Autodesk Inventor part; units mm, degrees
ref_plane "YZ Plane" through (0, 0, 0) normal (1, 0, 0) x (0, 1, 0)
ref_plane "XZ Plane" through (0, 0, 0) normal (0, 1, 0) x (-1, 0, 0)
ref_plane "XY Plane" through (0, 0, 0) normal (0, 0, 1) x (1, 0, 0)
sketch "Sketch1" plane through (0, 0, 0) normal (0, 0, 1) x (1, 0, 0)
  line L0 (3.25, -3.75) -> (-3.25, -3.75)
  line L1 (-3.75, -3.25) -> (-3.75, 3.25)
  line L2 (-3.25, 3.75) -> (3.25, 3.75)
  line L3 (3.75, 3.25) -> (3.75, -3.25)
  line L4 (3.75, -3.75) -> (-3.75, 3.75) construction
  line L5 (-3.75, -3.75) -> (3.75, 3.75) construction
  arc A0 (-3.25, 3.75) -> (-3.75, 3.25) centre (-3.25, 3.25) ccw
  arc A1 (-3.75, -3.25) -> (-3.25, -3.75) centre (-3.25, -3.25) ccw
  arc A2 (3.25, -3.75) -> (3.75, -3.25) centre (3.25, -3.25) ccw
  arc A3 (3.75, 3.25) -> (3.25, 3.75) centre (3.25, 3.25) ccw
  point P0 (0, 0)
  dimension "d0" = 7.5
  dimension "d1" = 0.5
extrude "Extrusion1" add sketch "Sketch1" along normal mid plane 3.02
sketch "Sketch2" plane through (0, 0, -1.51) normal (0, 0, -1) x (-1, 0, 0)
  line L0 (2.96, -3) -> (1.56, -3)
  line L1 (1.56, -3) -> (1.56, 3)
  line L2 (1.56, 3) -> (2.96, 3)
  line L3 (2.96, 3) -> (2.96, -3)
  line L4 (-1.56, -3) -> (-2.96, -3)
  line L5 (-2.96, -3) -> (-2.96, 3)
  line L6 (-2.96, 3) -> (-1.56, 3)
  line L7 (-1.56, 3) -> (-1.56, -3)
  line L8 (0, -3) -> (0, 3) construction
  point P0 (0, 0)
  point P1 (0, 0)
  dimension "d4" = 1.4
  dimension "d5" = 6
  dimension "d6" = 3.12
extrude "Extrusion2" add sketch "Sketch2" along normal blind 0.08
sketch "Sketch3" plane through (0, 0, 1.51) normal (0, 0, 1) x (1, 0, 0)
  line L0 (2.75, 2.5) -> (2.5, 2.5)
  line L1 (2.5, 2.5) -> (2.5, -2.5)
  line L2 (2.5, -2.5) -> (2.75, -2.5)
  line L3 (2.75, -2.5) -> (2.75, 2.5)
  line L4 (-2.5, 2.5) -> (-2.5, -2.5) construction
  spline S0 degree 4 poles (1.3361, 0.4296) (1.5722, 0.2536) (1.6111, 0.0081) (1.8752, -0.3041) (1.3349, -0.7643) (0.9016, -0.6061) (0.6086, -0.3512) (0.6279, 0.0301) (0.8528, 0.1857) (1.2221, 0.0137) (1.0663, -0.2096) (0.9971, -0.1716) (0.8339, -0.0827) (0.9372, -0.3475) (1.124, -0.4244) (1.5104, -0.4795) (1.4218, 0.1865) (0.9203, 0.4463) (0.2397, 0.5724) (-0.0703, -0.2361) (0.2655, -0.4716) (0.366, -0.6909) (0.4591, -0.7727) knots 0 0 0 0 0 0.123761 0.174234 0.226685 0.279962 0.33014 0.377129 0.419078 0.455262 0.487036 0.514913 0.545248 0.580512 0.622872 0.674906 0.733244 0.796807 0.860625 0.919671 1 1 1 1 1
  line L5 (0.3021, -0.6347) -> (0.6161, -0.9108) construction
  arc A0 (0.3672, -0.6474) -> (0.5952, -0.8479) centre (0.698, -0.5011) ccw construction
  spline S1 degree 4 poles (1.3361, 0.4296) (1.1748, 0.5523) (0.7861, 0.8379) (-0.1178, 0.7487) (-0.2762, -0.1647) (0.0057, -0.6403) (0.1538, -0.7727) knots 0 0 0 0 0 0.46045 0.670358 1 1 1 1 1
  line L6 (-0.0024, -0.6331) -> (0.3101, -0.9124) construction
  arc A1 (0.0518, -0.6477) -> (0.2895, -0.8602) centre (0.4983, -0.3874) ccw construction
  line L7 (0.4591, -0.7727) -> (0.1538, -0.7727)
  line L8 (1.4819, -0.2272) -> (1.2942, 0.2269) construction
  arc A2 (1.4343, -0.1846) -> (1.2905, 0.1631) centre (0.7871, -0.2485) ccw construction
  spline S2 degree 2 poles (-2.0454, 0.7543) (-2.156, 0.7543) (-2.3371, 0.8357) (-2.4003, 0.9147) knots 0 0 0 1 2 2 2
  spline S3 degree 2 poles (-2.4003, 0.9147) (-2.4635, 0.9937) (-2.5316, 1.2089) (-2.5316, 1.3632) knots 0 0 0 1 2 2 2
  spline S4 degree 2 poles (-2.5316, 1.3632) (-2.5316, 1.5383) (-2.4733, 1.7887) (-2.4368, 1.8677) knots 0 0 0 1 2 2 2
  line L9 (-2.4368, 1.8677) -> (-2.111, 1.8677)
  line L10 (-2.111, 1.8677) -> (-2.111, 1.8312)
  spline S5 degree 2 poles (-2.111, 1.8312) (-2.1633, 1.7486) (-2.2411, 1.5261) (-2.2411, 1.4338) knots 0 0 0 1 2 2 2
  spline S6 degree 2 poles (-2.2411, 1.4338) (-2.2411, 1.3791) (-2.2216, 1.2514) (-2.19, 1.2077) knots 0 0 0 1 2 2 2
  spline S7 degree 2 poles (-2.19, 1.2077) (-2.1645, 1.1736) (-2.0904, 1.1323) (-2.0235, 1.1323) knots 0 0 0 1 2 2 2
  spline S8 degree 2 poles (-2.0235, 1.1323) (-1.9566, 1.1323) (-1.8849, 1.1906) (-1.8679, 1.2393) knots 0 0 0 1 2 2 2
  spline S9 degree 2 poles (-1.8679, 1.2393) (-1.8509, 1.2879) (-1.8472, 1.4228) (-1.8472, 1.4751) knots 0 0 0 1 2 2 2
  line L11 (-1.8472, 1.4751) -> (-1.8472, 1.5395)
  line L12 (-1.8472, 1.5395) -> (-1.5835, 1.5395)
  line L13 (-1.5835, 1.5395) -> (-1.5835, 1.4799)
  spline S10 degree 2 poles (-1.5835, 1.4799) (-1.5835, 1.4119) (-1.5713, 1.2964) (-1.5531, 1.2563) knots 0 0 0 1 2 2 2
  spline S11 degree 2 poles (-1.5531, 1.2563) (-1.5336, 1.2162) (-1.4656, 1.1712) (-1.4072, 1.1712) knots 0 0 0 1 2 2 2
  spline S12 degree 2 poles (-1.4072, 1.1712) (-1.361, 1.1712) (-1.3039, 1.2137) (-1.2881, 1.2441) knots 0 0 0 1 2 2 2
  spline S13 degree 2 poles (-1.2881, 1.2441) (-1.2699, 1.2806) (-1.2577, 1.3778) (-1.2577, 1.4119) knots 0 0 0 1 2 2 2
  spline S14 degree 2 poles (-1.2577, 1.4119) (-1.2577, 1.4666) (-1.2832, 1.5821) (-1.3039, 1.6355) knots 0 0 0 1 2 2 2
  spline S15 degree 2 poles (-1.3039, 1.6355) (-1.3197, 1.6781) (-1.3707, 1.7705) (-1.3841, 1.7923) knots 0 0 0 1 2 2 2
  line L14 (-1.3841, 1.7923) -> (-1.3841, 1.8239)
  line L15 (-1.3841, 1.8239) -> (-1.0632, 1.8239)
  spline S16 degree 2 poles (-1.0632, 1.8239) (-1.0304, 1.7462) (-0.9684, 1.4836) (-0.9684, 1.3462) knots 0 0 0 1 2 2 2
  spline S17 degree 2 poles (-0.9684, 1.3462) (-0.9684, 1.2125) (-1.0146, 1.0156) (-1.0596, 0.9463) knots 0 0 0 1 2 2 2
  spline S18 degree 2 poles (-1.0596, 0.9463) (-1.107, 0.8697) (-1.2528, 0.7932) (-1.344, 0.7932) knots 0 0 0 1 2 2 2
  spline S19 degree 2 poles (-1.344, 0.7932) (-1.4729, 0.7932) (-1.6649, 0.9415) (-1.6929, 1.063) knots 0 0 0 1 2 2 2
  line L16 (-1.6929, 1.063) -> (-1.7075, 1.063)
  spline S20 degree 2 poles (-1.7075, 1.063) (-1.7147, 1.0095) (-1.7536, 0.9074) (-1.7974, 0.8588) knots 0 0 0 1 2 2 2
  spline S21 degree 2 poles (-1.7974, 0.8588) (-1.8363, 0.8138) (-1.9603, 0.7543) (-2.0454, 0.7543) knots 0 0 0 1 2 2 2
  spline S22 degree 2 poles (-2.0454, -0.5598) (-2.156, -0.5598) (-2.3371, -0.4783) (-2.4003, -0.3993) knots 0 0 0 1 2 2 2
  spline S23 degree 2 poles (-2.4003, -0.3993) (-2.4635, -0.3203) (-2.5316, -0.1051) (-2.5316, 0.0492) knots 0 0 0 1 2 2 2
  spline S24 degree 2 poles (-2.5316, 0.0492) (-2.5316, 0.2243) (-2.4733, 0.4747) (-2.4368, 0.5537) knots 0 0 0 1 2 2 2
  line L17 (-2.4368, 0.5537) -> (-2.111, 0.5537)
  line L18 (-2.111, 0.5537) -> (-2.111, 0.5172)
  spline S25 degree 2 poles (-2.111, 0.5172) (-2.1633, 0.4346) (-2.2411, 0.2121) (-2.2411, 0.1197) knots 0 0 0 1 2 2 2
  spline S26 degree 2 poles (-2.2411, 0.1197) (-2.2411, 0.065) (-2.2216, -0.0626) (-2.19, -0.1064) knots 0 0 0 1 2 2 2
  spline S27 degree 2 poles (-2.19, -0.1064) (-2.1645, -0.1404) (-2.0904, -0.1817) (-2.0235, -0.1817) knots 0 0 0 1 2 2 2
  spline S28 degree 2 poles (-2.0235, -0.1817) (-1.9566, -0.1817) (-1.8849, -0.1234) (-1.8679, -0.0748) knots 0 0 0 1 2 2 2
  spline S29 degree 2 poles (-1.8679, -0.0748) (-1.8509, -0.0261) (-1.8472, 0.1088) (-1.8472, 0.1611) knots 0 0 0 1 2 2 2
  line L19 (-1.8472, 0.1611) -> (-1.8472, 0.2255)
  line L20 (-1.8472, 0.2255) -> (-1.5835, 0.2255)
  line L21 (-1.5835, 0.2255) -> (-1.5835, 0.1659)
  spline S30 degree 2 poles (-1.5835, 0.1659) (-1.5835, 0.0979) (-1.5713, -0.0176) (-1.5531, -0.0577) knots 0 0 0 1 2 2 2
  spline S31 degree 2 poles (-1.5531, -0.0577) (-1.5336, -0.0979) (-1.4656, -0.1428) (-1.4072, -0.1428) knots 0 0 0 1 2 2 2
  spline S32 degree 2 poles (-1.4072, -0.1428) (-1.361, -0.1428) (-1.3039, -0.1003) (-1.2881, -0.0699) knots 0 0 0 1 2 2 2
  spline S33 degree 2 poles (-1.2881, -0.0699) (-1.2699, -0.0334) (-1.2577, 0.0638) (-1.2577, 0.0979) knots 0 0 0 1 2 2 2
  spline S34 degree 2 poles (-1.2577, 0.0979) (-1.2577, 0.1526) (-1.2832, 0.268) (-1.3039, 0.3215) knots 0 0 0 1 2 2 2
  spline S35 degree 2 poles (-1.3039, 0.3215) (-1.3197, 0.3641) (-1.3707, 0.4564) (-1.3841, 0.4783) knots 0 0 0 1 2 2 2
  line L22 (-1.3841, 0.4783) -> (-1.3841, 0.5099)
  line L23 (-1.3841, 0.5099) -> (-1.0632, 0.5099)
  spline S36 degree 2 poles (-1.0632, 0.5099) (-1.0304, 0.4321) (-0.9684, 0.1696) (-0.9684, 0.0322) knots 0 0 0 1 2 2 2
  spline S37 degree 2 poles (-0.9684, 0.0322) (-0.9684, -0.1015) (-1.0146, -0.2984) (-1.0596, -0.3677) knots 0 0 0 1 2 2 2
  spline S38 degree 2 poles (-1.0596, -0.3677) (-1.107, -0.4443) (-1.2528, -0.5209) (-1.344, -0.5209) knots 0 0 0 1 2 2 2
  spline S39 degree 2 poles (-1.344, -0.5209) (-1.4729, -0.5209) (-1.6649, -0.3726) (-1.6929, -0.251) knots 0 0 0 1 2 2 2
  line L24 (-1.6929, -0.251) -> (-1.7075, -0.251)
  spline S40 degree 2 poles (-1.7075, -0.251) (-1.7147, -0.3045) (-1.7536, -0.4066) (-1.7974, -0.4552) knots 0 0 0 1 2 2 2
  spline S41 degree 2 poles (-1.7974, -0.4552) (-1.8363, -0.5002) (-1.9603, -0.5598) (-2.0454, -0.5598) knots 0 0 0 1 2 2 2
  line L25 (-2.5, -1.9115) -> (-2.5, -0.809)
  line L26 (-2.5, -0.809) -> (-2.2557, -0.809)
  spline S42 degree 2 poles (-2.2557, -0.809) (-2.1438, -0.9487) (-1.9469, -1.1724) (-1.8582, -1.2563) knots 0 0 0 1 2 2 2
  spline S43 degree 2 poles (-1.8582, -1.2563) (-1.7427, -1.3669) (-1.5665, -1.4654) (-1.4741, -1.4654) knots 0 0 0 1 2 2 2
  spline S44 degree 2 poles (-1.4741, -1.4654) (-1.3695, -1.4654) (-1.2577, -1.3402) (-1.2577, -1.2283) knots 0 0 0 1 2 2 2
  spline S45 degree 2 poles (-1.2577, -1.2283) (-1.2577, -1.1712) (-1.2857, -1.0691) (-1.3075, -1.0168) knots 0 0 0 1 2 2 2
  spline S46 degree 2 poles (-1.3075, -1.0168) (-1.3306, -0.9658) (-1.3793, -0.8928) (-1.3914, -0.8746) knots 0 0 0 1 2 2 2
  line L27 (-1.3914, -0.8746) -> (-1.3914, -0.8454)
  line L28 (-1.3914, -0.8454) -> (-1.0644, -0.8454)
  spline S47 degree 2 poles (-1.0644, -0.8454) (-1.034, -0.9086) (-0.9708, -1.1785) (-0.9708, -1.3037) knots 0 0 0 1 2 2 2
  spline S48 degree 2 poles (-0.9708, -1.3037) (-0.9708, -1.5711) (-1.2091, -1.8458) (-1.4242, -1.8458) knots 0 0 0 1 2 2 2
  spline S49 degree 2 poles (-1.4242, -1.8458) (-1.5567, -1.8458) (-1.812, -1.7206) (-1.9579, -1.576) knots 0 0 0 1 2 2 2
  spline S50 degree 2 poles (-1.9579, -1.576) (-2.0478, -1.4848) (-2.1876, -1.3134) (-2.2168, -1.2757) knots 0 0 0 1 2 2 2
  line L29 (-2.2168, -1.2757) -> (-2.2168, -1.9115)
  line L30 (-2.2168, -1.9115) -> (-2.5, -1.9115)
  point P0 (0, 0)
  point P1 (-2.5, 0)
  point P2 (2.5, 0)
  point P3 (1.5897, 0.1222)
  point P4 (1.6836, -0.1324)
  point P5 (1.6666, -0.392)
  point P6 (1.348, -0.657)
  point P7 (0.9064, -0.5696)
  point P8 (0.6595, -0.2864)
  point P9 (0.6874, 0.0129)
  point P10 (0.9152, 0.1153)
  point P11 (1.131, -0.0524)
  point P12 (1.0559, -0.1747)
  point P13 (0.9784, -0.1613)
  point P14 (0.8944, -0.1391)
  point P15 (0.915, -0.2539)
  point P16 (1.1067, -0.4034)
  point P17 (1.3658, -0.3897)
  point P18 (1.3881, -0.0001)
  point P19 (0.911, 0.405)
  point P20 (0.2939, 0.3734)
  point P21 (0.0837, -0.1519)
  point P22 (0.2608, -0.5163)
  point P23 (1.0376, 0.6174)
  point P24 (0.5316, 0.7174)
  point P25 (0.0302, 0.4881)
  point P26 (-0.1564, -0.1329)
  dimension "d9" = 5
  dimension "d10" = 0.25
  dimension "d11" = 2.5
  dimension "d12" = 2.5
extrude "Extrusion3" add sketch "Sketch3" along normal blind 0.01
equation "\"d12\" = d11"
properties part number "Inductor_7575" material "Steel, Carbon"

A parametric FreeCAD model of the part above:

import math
import FreeCAD as App
import Part
import Sketcher


def add_polygon(sketch, points):
    """Adds a closed chain of lines whose ends are joined by coincident constraints."""
    first, n = sketch.GeometryCount, len(points)
    for a, b in zip(points, points[1:] + points[:1]):
        sketch.addGeometry(Part.LineSegment(App.Vector(*a, 0), App.Vector(*b, 0)), False)
    for i in range(n):
        sketch.addConstraint(Sketcher.Constraint("Coincident", first + i, 2, first + (i + 1) % n, 1))

doc = App.newDocument("Part")
body = doc.addObject("PartDesign::Body", "Body")

sketch1 = doc.addObject("Sketcher::SketchObject", "Sketch")
body.addObject(sketch1)
sketch1.AttachmentSupport = (doc.XY_Plane, [""])
sketch1.MapMode = "FlatFace"
sketch1.addGeometry(Part.LineSegment(App.Vector(-3.2, -3.8, 0), App.Vector(3.2, -3.8, 0)), False)
sketch1.addGeometry(Part.ArcOfCircle(Part.Circle(App.Vector(3.2, -3.2, 0), App.Vector(0, 0, 1), 0.5), math.radians(-90), math.radians(0)), False)
sketch1.addGeometry(Part.LineSegment(App.Vector(3.8, -3.2, 0), App.Vector(3.8, 3.2, 0)), False)
sketch1.addGeometry(Part.ArcOfCircle(Part.Circle(App.Vector(3.2, 3.2, 0), App.Vector(0, 0, 1), 0.5), math.radians(0), math.radians(90)), False)
sketch1.addGeometry(Part.LineSegment(App.Vector(3.2, 3.8, 0), App.Vector(-3.2, 3.8, 0)), False)
sketch1.addGeometry(Part.ArcOfCircle(Part.Circle(App.Vector(-3.2, 3.2, 0), App.Vector(0, 0, 1), 0.5), math.radians(90), math.radians(180)), False)
sketch1.addGeometry(Part.LineSegment(App.Vector(-3.8, 3.2, 0), App.Vector(-3.8, -3.2, 0)), False)
sketch1.addGeometry(Part.ArcOfCircle(Part.Circle(App.Vector(-3.2, -3.2, 0), App.Vector(0, 0, 1), 0.5), math.radians(180), math.radians(270)), False)
sketch1.addConstraint(Sketcher.Constraint("Tangent", 0, 2, 1, 1))
sketch1.addConstraint(Sketcher.Constraint("Tangent", 1, 2, 2, 1))
sketch1.addConstraint(Sketcher.Constraint("Tangent", 2, 2, 3, 1))
sketch1.addConstraint(Sketcher.Constraint("Tangent", 3, 2, 4, 1))
sketch1.addConstraint(Sketcher.Constraint("Tangent", 4, 2, 5, 1))
sketch1.addConstraint(Sketcher.Constraint("Tangent", 5, 2, 6, 1))
sketch1.addConstraint(Sketcher.Constraint("Tangent", 6, 2, 7, 1))
sketch1.addConstraint(Sketcher.Constraint("Tangent", 7, 2, 0, 1))
sketch1.addConstraint(Sketcher.Constraint("Horizontal", 0))
sketch1.addConstraint(Sketcher.Constraint("Vertical", 2))
sketch1.addConstraint(Sketcher.Constraint("Horizontal", 4))
sketch1.addConstraint(Sketcher.Constraint("Vertical", 6))
sketch1.addConstraint(Sketcher.Constraint("Equal", 1, 3))
sketch1.addConstraint(Sketcher.Constraint("Equal", 3, 5))
sketch1.addConstraint(Sketcher.Constraint("Equal", 5, 7))
sketch1.addConstraint(Sketcher.Constraint("Symmetric", 1, 3, 5, 3, -1, 1))
sketch1.addConstraint(Sketcher.Constraint("Equal", 4, 2))
sketch1.addConstraint(Sketcher.Constraint("Radius", 1, 0.5))
sketch1.addConstraint(Sketcher.Constraint("DistanceX", 0, 1, 0, 2, 6.5))
pad1 = doc.addObject("PartDesign::Pad", "Pad")
body.addObject(pad1)
pad1.Profile = sketch1
pad1.Length = 3.02
pad1.Midplane = True

sketch2 = doc.addObject("Sketcher::SketchObject", "Sketch001")
body.addObject(sketch2)
sketch2.AttachmentSupport = (doc.XY_Plane, [""])
sketch2.MapMode = "FlatFace"
sketch2.AttachmentOffset = App.Placement(App.Vector(0, 0, -1.51), App.Rotation())
add_polygon(sketch2, [(-1.6, -3), (-3, -3), (-3, 3), (-1.6, 3)])
add_polygon(sketch2, [(3, -3), (1.6, -3), (1.6, 3), (3, 3)])
sketch2.addConstraint(Sketcher.Constraint("Horizontal", 0))
sketch2.addConstraint(Sketcher.Constraint("Vertical", 1))
sketch2.addConstraint(Sketcher.Constraint("Horizontal", 2))
sketch2.addConstraint(Sketcher.Constraint("Vertical", 3))
sketch2.addConstraint(Sketcher.Constraint("Horizontal", 4))
sketch2.addConstraint(Sketcher.Constraint("Vertical", 5))
sketch2.addConstraint(Sketcher.Constraint("Horizontal", 6))
sketch2.addConstraint(Sketcher.Constraint("Vertical", 7))
sketch2.addConstraint(Sketcher.Constraint("Symmetric", 2, 2, 4, 2, -1, 1))
sketch2.addConstraint(Sketcher.Constraint("Symmetric", 0, 2, 6, 2, -1, 1))
sketch2.addConstraint(Sketcher.Constraint("Horizontal", 3, 2, 4, 2))
sketch2.addConstraint(Sketcher.Constraint("DistanceY", 1, 1, 1, 2, 6.0))
sketch2.addConstraint(Sketcher.Constraint("DistanceX", 0, 2, 0, 1, 1.4))
sketch2.addConstraint(Sketcher.Constraint("DistanceX", 3, 2, 4, 2, 3.12))
pad2 = doc.addObject("PartDesign::Pad", "Pad001")
body.addObject(pad2)
pad2.Profile = sketch2
pad2.Length = 0.08
pad2.Reversed = True

sketch3 = doc.addObject("Sketcher::SketchObject", "Sketch002")
body.addObject(sketch3)
sketch3.AttachmentSupport = (doc.XY_Plane, [""])
sketch3.MapMode = "FlatFace"
sketch3.AttachmentOffset = App.Placement(App.Vector(0, 0, 1.51), App.Rotation())
add_polygon(sketch3, [(2.75, -2.5), (2.75, 2.5), (2.5, 2.5), (2.5, -2.5)])
sketch3.addGeometry(Part.BSplineCurve([App.Vector(1.3361, 0.4296, 0), App.Vector(1.5722, 0.2536, 0), App.Vector(1.6111, 0.0081, 0), App.Vector(1.8752, -0.3041, 0), App.Vector(1.3349, -0.7643, 0), App.Vector(0.9016, -0.6061, 0), App.Vector(0.6086, -0.3512, 0), App.Vector(0.6279, 0.0301, 0), App.Vector(0.8528, 0.1857, 0), App.Vector(1.2221, 0.0137, 0), App.Vector(1.0663, -0.2096, 0), App.Vector(0.9971, -0.1716, 0), App.Vector(0.8339, -0.0827, 0), App.Vector(0.9372, -0.3475, 0), App.Vector(1.124, -0.4244, 0), App.Vector(1.5104, -0.4795, 0), App.Vector(1.4218, 0.1865, 0), App.Vector(0.9203, 0.4463, 0), App.Vector(0.2397, 0.5724, 0), App.Vector(-0.0703, -0.2361, 0), App.Vector(0.2655, -0.4716, 0), App.Vector(0.366, -0.6909, 0), App.Vector(0.4591, -0.7727, 0)], [5, 1, 1, 1, 1, 1, 1, 1, 1, 1, 1, 1, 1, 1, 1, 1, 1, 1, 1, 5], [0, 0.123761, 0.174234, 0.226685, 0.279962, 0.33014, 0.377129, 0.419078, 0.455262, 0.487036, 0.514913, 0.545248, 0.580512, 0.622872, 0.674906, 0.733244, 0.796807, 0.860625, 0.919671, 1], False, 4, [1, 1, 1, 1, 1, 1, 1, 1, 1, 1, 1, 1, 1, 1, 1, 1, 1, 1, 1, 1, 1, 1, 1], False), False)
sketch3.addGeometry(Part.BSplineCurve([App.Vector(1.3361, 0.4296, 0), App.Vector(1.1748, 0.5523, 0), App.Vector(0.7861, 0.8379, 0), App.Vector(-0.1178, 0.7487, 0), App.Vector(-0.2762, -0.1647, 0), App.Vector(0.0057, -0.6403, 0), App.Vector(0.1538, -0.7727, 0)], [5, 1, 1, 5], [0, 0.46045, 0.670358, 1], False, 4, [1, 1, 1, 1, 1, 1, 1], False), False)
sketch3.addGeometry(Part.LineSegment(App.Vector(0.1538, -0.7727, 0), App.Vector(0.4591, -0.7727, 0)), False)
sketch3.addGeometry(Part.BSplineCurve([App.Vector(-2.0454, 0.7543, 0), App.Vector(-2.156, 0.7543, 0), App.Vector(-2.3371, 0.8357, 0), App.Vector(-2.4003, 0.9147, 0)], [3, 1, 3], [0, 1, 2], False, 2, [1, 1, 1, 1], False), False)
sketch3.addGeometry(Part.BSplineCurve([App.Vector(-1.7974, 0.8588, 0), App.Vector(-1.8363, 0.8138, 0), App.Vector(-1.9603, 0.7543, 0), App.Vector(-2.0454, 0.7543, 0)], [3, 1, 3], [0, 1, 2], False, 2, [1, 1, 1, 1], False), False)
sketch3.addGeometry(Part.BSplineCurve([App.Vector(-1.7075, 1.063, 0), App.Vector(-1.7147, 1.0095, 0), App.Vector(-1.7536, 0.9074, 0), App.Vector(-1.7974, 0.8588, 0)], [3, 1, 3], [0, 1, 2], False, 2, [1, 1, 1, 1], False), False)
sketch3.addGeometry(Part.LineSegment(App.Vector(-1.7075, 1.063, 0), App.Vector(-1.6929, 1.063, 0)), False)
sketch3.addGeometry(Part.BSplineCurve([App.Vector(-1.344, 0.7932, 0), App.Vector(-1.4729, 0.7932, 0), App.Vector(-1.6649, 0.9415, 0), App.Vector(-1.6929, 1.063, 0)], [3, 1, 3], [0, 1, 2], False, 2, [1, 1, 1, 1], False), False)
sketch3.addGeometry(Part.BSplineCurve([App.Vector(-1.0596, 0.9463, 0), App.Vector(-1.107, 0.8697, 0), App.Vector(-1.2528, 0.7932, 0), App.Vector(-1.344, 0.7932, 0)], [3, 1, 3], [0, 1, 2], False, 2, [1, 1, 1, 1], False), False)
sketch3.addGeometry(Part.BSplineCurve([App.Vector(-0.9684, 1.3462, 0), App.Vector(-0.9684, 1.2125, 0), App.Vector(-1.0146, 1.0156, 0), App.Vector(-1.0596, 0.9463, 0)], [3, 1, 3], [0, 1, 2], False, 2, [1, 1, 1, 1], False), False)
sketch3.addGeometry(Part.BSplineCurve([App.Vector(-1.0632, 1.8239, 0), App.Vector(-1.0304, 1.7462, 0), App.Vector(-0.9684, 1.4836, 0), App.Vector(-0.9684, 1.3462, 0)], [3, 1, 3], [0, 1, 2], False, 2, [1, 1, 1, 1], False), False)
sketch3.addGeometry(Part.LineSegment(App.Vector(-1.0632, 1.8239, 0), App.Vector(-1.3841, 1.8239, 0)), False)
sketch3.addGeometry(Part.LineSegment(App.Vector(-1.3841, 1.8239, 0), App.Vector(-1.3841, 1.7923, 0)), False)
sketch3.addGeometry(Part.BSplineCurve([App.Vector(-1.3039, 1.6355, 0), App.Vector(-1.3197, 1.6781, 0), App.Vector(-1.3707, 1.7705, 0), App.Vector(-1.3841, 1.7923, 0)], [3, 1, 3], [0, 1, 2], False, 2, [1, 1, 1, 1], False), False)
sketch3.addGeometry(Part.BSplineCurve([App.Vector(-1.2577, 1.4119, 0), App.Vector(-1.2577, 1.4666, 0), App.Vector(-1.2832, 1.5821, 0), App.Vector(-1.3039, 1.6355, 0)], [3, 1, 3], [0, 1, 2], False, 2, [1, 1, 1, 1], False), False)
sketch3.addGeometry(Part.BSplineCurve([App.Vector(-1.2881, 1.2441, 0), App.Vector(-1.2699, 1.2806, 0), App.Vector(-1.2577, 1.3778, 0), App.Vector(-1.2577, 1.4119, 0)], [3, 1, 3], [0, 1, 2], False, 2, [1, 1, 1, 1], False), False)
sketch3.addGeometry(Part.BSplineCurve([App.Vector(-1.4072, 1.1712, 0), App.Vector(-1.361, 1.1712, 0), App.Vector(-1.3039, 1.2137, 0), App.Vector(-1.2881, 1.2441, 0)], [3, 1, 3], [0, 1, 2], False, 2, [1, 1, 1, 1], False), False)
sketch3.addGeometry(Part.BSplineCurve([App.Vector(-1.5531, 1.2563, 0), App.Vector(-1.5336, 1.2162, 0), App.Vector(-1.4656, 1.1712, 0), App.Vector(-1.4072, 1.1712, 0)], [3, 1, 3], [0, 1, 2], False, 2, [1, 1, 1, 1], False), False)
sketch3.addGeometry(Part.BSplineCurve([App.Vector(-1.5835, 1.4799, 0), App.Vector(-1.5835, 1.4119, 0), App.Vector(-1.5713, 1.2964, 0), App.Vector(-1.5531, 1.2563, 0)], [3, 1, 3], [0, 1, 2], False, 2, [1, 1, 1, 1], False), False)
sketch3.addGeometry(Part.LineSegment(App.Vector(-1.5835, 1.4799, 0), App.Vector(-1.5835, 1.5395, 0)), False)
sketch3.addGeometry(Part.LineSegment(App.Vector(-1.5835, 1.5395, 0), App.Vector(-1.8472, 1.5395, 0)), False)
sketch3.addGeometry(Part.LineSegment(App.Vector(-1.8472, 1.5395, 0), App.Vector(-1.8472, 1.4751, 0)), False)
sketch3.addGeometry(Part.BSplineCurve([App.Vector(-1.8679, 1.2393, 0), App.Vector(-1.8509, 1.2879, 0), App.Vector(-1.8472, 1.4228, 0), App.Vector(-1.8472, 1.4751, 0)], [3, 1, 3], [0, 1, 2], False, 2, [1, 1, 1, 1], False), False)
sketch3.addGeometry(Part.BSplineCurve([App.Vector(-2.0235, 1.1323, 0), App.Vector(-1.9566, 1.1323, 0), App.Vector(-1.8849, 1.1906, 0), App.Vector(-1.8679, 1.2393, 0)], [3, 1, 3], [0, 1, 2], False, 2, [1, 1, 1, 1], False), False)
sketch3.addGeometry(Part.BSplineCurve([App.Vector(-2.19, 1.2077, 0), App.Vector(-2.1645, 1.1736, 0), App.Vector(-2.0904, 1.1323, 0), App.Vector(-2.0235, 1.1323, 0)], [3, 1, 3], [0, 1, 2], False, 2, [1, 1, 1, 1], False), False)
sketch3.addGeometry(Part.BSplineCurve([App.Vector(-2.2411, 1.4338, 0), App.Vector(-2.2411, 1.3791, 0), App.Vector(-2.2216, 1.2514, 0), App.Vector(-2.19, 1.2077, 0)], [3, 1, 3], [0, 1, 2], False, 2, [1, 1, 1, 1], False), False)
sketch3.addGeometry(Part.BSplineCurve([App.Vector(-2.111, 1.8312, 0), App.Vector(-2.1633, 1.7486, 0), App.Vector(-2.2411, 1.5261, 0), App.Vector(-2.2411, 1.4338, 0)], [3, 1, 3], [0, 1, 2], False, 2, [1, 1, 1, 1], False), False)
sketch3.addGeometry(Part.LineSegment(App.Vector(-2.111, 1.8312, 0), App.Vector(-2.111, 1.8677, 0)), False)
sketch3.addGeometry(Part.LineSegment(App.Vector(-2.111, 1.8677, 0), App.Vector(-2.4368, 1.8677, 0)), False)
sketch3.addGeometry(Part.BSplineCurve([App.Vector(-2.5316, 1.3632, 0), App.Vector(-2.5316, 1.5383, 0), App.Vector(-2.4733, 1.7887, 0), App.Vector(-2.4368, 1.8677, 0)], [3, 1, 3], [0, 1, 2], False, 2, [1, 1, 1, 1], False), False)
sketch3.addGeometry(Part.BSplineCurve([App.Vector(-2.4003, 0.9147, 0), App.Vector(-2.4635, 0.9937, 0), App.Vector(-2.5316, 1.2089, 0), App.Vector(-2.5316, 1.3632, 0)], [3, 1, 3], [0, 1, 2], False, 2, [1, 1, 1, 1], False), False)
sketch3.addGeometry(Part.BSplineCurve([App.Vector(-2.0454, -0.5598, 0), App.Vector(-2.156, -0.5598, 0), App.Vector(-2.3371, -0.4783, 0), App.Vector(-2.4003, -0.3993, 0)], [3, 1, 3], [0, 1, 2], False, 2, [1, 1, 1, 1], False), False)
sketch3.addGeometry(Part.BSplineCurve([App.Vector(-1.7974, -0.4552, 0), App.Vector(-1.8363, -0.5002, 0), App.Vector(-1.9603, -0.5598, 0), App.Vector(-2.0454, -0.5598, 0)], [3, 1, 3], [0, 1, 2], False, 2, [1, 1, 1, 1], False), False)
sketch3.addGeometry(Part.BSplineCurve([App.Vector(-1.7075, -0.251, 0), App.Vector(-1.7147, -0.3045, 0), App.Vector(-1.7536, -0.4066, 0), App.Vector(-1.7974, -0.4552, 0)], [3, 1, 3], [0, 1, 2], False, 2, [1, 1, 1, 1], False), False)
sketch3.addGeometry(Part.LineSegment(App.Vector(-1.7075, -0.251, 0), App.Vector(-1.6929, -0.251, 0)), False)
sketch3.addGeometry(Part.BSplineCurve([App.Vector(-1.344, -0.5209, 0), App.Vector(-1.4729, -0.5209, 0), App.Vector(-1.6649, -0.3726, 0), App.Vector(-1.6929, -0.251, 0)], [3, 1, 3], [0, 1, 2], False, 2, [1, 1, 1, 1], False), False)
sketch3.addGeometry(Part.BSplineCurve([App.Vector(-1.0596, -0.3677, 0), App.Vector(-1.107, -0.4443, 0), App.Vector(-1.2528, -0.5209, 0), App.Vector(-1.344, -0.5209, 0)], [3, 1, 3], [0, 1, 2], False, 2, [1, 1, 1, 1], False), False)
sketch3.addGeometry(Part.BSplineCurve([App.Vector(-0.9684, 0.0322, 0), App.Vector(-0.9684, -0.1015, 0), App.Vector(-1.0146, -0.2984, 0), App.Vector(-1.0596, -0.3677, 0)], [3, 1, 3], [0, 1, 2], False, 2, [1, 1, 1, 1], False), False)
sketch3.addGeometry(Part.BSplineCurve([App.Vector(-1.0632, 0.5099, 0), App.Vector(-1.0304, 0.4321, 0), App.Vector(-0.9684, 0.1696, 0), App.Vector(-0.9684, 0.0322, 0)], [3, 1, 3], [0, 1, 2], False, 2, [1, 1, 1, 1], False), False)
sketch3.addGeometry(Part.LineSegment(App.Vector(-1.0632, 0.5099, 0), App.Vector(-1.3841, 0.5099, 0)), False)
sketch3.addGeometry(Part.LineSegment(App.Vector(-1.3841, 0.5099, 0), App.Vector(-1.3841, 0.4783, 0)), False)
sketch3.addGeometry(Part.BSplineCurve([App.Vector(-1.3039, 0.3215, 0), App.Vector(-1.3197, 0.3641, 0), App.Vector(-1.3707, 0.4564, 0), App.Vector(-1.3841, 0.4783, 0)], [3, 1, 3], [0, 1, 2], False, 2, [1, 1, 1, 1], False), False)
sketch3.addGeometry(Part.BSplineCurve([App.Vector(-1.2577, 0.0979, 0), App.Vector(-1.2577, 0.1526, 0), App.Vector(-1.2832, 0.268, 0), App.Vector(-1.3039, 0.3215, 0)], [3, 1, 3], [0, 1, 2], False, 2, [1, 1, 1, 1], False), False)
sketch3.addGeometry(Part.BSplineCurve([App.Vector(-1.2881, -0.0699, 0), App.Vector(-1.2699, -0.0334, 0), App.Vector(-1.2577, 0.0638, 0), App.Vector(-1.2577, 0.0979, 0)], [3, 1, 3], [0, 1, 2], False, 2, [1, 1, 1, 1], False), False)
sketch3.addGeometry(Part.BSplineCurve([App.Vector(-1.4072, -0.1428, 0), App.Vector(-1.361, -0.1428, 0), App.Vector(-1.3039, -0.1003, 0), App.Vector(-1.2881, -0.0699, 0)], [3, 1, 3], [0, 1, 2], False, 2, [1, 1, 1, 1], False), False)
sketch3.addGeometry(Part.BSplineCurve([App.Vector(-1.5531, -0.0577, 0), App.Vector(-1.5336, -0.0979, 0), App.Vector(-1.4656, -0.1428, 0), App.Vector(-1.4072, -0.1428, 0)], [3, 1, 3], [0, 1, 2], False, 2, [1, 1, 1, 1], False), False)
sketch3.addGeometry(Part.BSplineCurve([App.Vector(-1.5835, 0.1659, 0), App.Vector(-1.5835, 0.0979, 0), App.Vector(-1.5713, -0.0176, 0), App.Vector(-1.5531, -0.0577, 0)], [3, 1, 3], [0, 1, 2], False, 2, [1, 1, 1, 1], False), False)
sketch3.addGeometry(Part.LineSegment(App.Vector(-1.5835, 0.1659, 0), App.Vector(-1.5835, 0.2255, 0)), False)
sketch3.addGeometry(Part.LineSegment(App.Vector(-1.5835, 0.2255, 0), App.Vector(-1.8472, 0.2255, 0)), False)
sketch3.addGeometry(Part.LineSegment(App.Vector(-1.8472, 0.2255, 0), App.Vector(-1.8472, 0.1611, 0)), False)
sketch3.addGeometry(Part.BSplineCurve([App.Vector(-1.8679, -0.0748, 0), App.Vector(-1.8509, -0.0261, 0), App.Vector(-1.8472, 0.1088, 0), App.Vector(-1.8472, 0.1611, 0)], [3, 1, 3], [0, 1, 2], False, 2, [1, 1, 1, 1], False), False)
sketch3.addGeometry(Part.BSplineCurve([App.Vector(-2.0235, -0.1817, 0), App.Vector(-1.9566, -0.1817, 0), App.Vector(-1.8849, -0.1234, 0), App.Vector(-1.8679, -0.0748, 0)], [3, 1, 3], [0, 1, 2], False, 2, [1, 1, 1, 1], False), False)
sketch3.addGeometry(Part.BSplineCurve([App.Vector(-2.19, -0.1064, 0), App.Vector(-2.1645, -0.1404, 0), App.Vector(-2.0904, -0.1817, 0), App.Vector(-2.0235, -0.1817, 0)], [3, 1, 3], [0, 1, 2], False, 2, [1, 1, 1, 1], False), False)
sketch3.addGeometry(Part.BSplineCurve([App.Vector(-2.2411, 0.1197, 0), App.Vector(-2.2411, 0.065, 0), App.Vector(-2.2216, -0.0626, 0), App.Vector(-2.19, -0.1064, 0)], [3, 1, 3], [0, 1, 2], False, 2, [1, 1, 1, 1], False), False)
sketch3.addGeometry(Part.BSplineCurve([App.Vector(-2.111, 0.5172, 0), App.Vector(-2.1633, 0.4346, 0), App.Vector(-2.2411, 0.2121, 0), App.Vector(-2.2411, 0.1197, 0)], [3, 1, 3], [0, 1, 2], False, 2, [1, 1, 1, 1], False), False)
sketch3.addGeometry(Part.LineSegment(App.Vector(-2.111, 0.5172, 0), App.Vector(-2.111, 0.5537, 0)), False)
sketch3.addGeometry(Part.LineSegment(App.Vector(-2.111, 0.5537, 0), App.Vector(-2.4368, 0.5537, 0)), False)
sketch3.addGeometry(Part.BSplineCurve([App.Vector(-2.5316, 0.0492, 0), App.Vector(-2.5316, 0.2243, 0), App.Vector(-2.4733, 0.4747, 0), App.Vector(-2.4368, 0.5537, 0)], [3, 1, 3], [0, 1, 2], False, 2, [1, 1, 1, 1], False), False)
sketch3.addGeometry(Part.BSplineCurve([App.Vector(-2.4003, -0.3993, 0), App.Vector(-2.4635, -0.3203, 0), App.Vector(-2.5316, -0.1051, 0), App.Vector(-2.5316, 0.0492, 0)], [3, 1, 3], [0, 1, 2], False, 2, [1, 1, 1, 1], False), False)
sketch3.addGeometry(Part.LineSegment(App.Vector(-2.5, -0.809, 0), App.Vector(-2.5, -1.9115, 0)), False)
sketch3.addGeometry(Part.LineSegment(App.Vector(-2.5, -1.9115, 0), App.Vector(-2.2168, -1.9115, 0)), False)
sketch3.addGeometry(Part.LineSegment(App.Vector(-2.2168, -1.9115, 0), App.Vector(-2.2168, -1.2757, 0)), False)
sketch3.addGeometry(Part.BSplineCurve([App.Vector(-1.9579, -1.576, 0), App.Vector(-2.0478, -1.4848, 0), App.Vector(-2.1876, -1.3134, 0), App.Vector(-2.2168, -1.2757, 0)], [3, 1, 3], [0, 1, 2], False, 2, [1, 1, 1, 1], False), False)
sketch3.addGeometry(Part.BSplineCurve([App.Vector(-1.4242, -1.8458, 0), App.Vector(-1.5567, -1.8458, 0), App.Vector(-1.812, -1.7206, 0), App.Vector(-1.9579, -1.576, 0)], [3, 1, 3], [0, 1, 2], False, 2, [1, 1, 1, 1], False), False)
sketch3.addGeometry(Part.BSplineCurve([App.Vector(-0.9708, -1.3037, 0), App.Vector(-0.9708, -1.5711, 0), App.Vector(-1.2091, -1.8458, 0), App.Vector(-1.4242, -1.8458, 0)], [3, 1, 3], [0, 1, 2], False, 2, [1, 1, 1, 1], False), False)
sketch3.addGeometry(Part.BSplineCurve([App.Vector(-1.0644, -0.8454, 0), App.Vector(-1.034, -0.9086, 0), App.Vector(-0.9708, -1.1785, 0), App.Vector(-0.9708, -1.3037, 0)], [3, 1, 3], [0, 1, 2], False, 2, [1, 1, 1, 1], False), False)
sketch3.addGeometry(Part.LineSegment(App.Vector(-1.0644, -0.8454, 0), App.Vector(-1.3914, -0.8454, 0)), False)
sketch3.addGeometry(Part.LineSegment(App.Vector(-1.3914, -0.8454, 0), App.Vector(-1.3914, -0.8746, 0)), False)
sketch3.addGeometry(Part.BSplineCurve([App.Vector(-1.3075, -1.0168, 0), App.Vector(-1.3306, -0.9658, 0), App.Vector(-1.3793, -0.8928, 0), App.Vector(-1.3914, -0.8746, 0)], [3, 1, 3], [0, 1, 2], False, 2, [1, 1, 1, 1], False), False)
sketch3.addGeometry(Part.BSplineCurve([App.Vector(-1.2577, -1.2283, 0), App.Vector(-1.2577, -1.1712, 0), App.Vector(-1.2857, -1.0691, 0), App.Vector(-1.3075, -1.0168, 0)], [3, 1, 3], [0, 1, 2], False, 2, [1, 1, 1, 1], False), False)
sketch3.addGeometry(Part.BSplineCurve([App.Vector(-1.4741, -1.4654, 0), App.Vector(-1.3695, -1.4654, 0), App.Vector(-1.2577, -1.3402, 0), App.Vector(-1.2577, -1.2283, 0)], [3, 1, 3], [0, 1, 2], False, 2, [1, 1, 1, 1], False), False)
sketch3.addGeometry(Part.BSplineCurve([App.Vector(-1.8582, -1.2563, 0), App.Vector(-1.7427, -1.3669, 0), App.Vector(-1.5665, -1.4654, 0), App.Vector(-1.4741, -1.4654, 0)], [3, 1, 3], [0, 1, 2], False, 2, [1, 1, 1, 1], False), False)
sketch3.addGeometry(Part.BSplineCurve([App.Vector(-2.2557, -0.809, 0), App.Vector(-2.1438, -0.9487, 0), App.Vector(-1.9469, -1.1724, 0), App.Vector(-1.8582, -1.2563, 0)], [3, 1, 3], [0, 1, 2], False, 2, [1, 1, 1, 1], False), False)
sketch3.addGeometry(Part.LineSegment(App.Vector(-2.2557, -0.809, 0), App.Vector(-2.5, -0.809, 0)), False)
sketch3.addConstraint(Sketcher.Constraint("Block", 4))
sketch3.addConstraint(Sketcher.Constraint("Block", 5))
sketch3.addConstraint(Sketcher.Constraint("Block", 7))
sketch3.addConstraint(Sketcher.Constraint("Block", 8))
sketch3.addConstraint(Sketcher.Constraint("Block", 9))
sketch3.addConstraint(Sketcher.Constraint("Block", 11))
sketch3.addConstraint(Sketcher.Constraint("Block", 12))
sketch3.addConstraint(Sketcher.Constraint("Block", 13))
sketch3.addConstraint(Sketcher.Constraint("Block", 14))
sketch3.addConstraint(Sketcher.Constraint("Block", 17))
sketch3.addConstraint(Sketcher.Constraint("Block", 18))
sketch3.addConstraint(Sketcher.Constraint("Block", 19))
sketch3.addConstraint(Sketcher.Constraint("Block", 20))
sketch3.addConstraint(Sketcher.Constraint("Block", 21))
sketch3.addConstraint(Sketcher.Constraint("Block", 22))
sketch3.addConstraint(Sketcher.Constraint("Block", 26))
sketch3.addConstraint(Sketcher.Constraint("Block", 27))
sketch3.addConstraint(Sketcher.Constraint("Block", 28))
sketch3.addConstraint(Sketcher.Constraint("Block", 29))
sketch3.addConstraint(Sketcher.Constraint("Block", 30))
sketch3.addConstraint(Sketcher.Constraint("Block", 33))
sketch3.addConstraint(Sketcher.Constraint("Block", 34))
sketch3.addConstraint(Sketcher.Constraint("Block", 35))
sketch3.addConstraint(Sketcher.Constraint("Block", 36))
sketch3.addConstraint(Sketcher.Constraint("Block", 37))
sketch3.addConstraint(Sketcher.Constraint("Block", 39))
sketch3.addConstraint(Sketcher.Constraint("Block", 40))
sketch3.addConstraint(Sketcher.Constraint("Block", 41))
sketch3.addConstraint(Sketcher.Constraint("Block", 42))
sketch3.addConstraint(Sketcher.Constraint("Block", 45))
sketch3.addConstraint(Sketcher.Constraint("Block", 46))
sketch3.addConstraint(Sketcher.Constraint("Block", 47))
sketch3.addConstraint(Sketcher.Constraint("Block", 48))
sketch3.addConstraint(Sketcher.Constraint("Block", 49))
sketch3.addConstraint(Sketcher.Constraint("Block", 50))
sketch3.addConstraint(Sketcher.Constraint("Block", 54))
sketch3.addConstraint(Sketcher.Constraint("Block", 55))
sketch3.addConstraint(Sketcher.Constraint("Block", 56))
sketch3.addConstraint(Sketcher.Constraint("Block", 57))
sketch3.addConstraint(Sketcher.Constraint("Block", 58))
sketch3.addConstraint(Sketcher.Constraint("Block", 61))
sketch3.addConstraint(Sketcher.Constraint("Block", 62))
sketch3.addConstraint(Sketcher.Constraint("Block", 66))
sketch3.addConstraint(Sketcher.Constraint("Block", 67))
sketch3.addConstraint(Sketcher.Constraint("Block", 68))
sketch3.addConstraint(Sketcher.Constraint("Block", 69))
sketch3.addConstraint(Sketcher.Constraint("Block", 72))
sketch3.addConstraint(Sketcher.Constraint("Block", 73))
sketch3.addConstraint(Sketcher.Constraint("Block", 74))
sketch3.addConstraint(Sketcher.Constraint("Block", 75))
sketch3.addConstraint(Sketcher.Constraint("Block", 76))
sketch3.addConstraint(Sketcher.Constraint("Coincident", 5, 2, 6, 1))
sketch3.addConstraint(Sketcher.Constraint("Coincident", 6, 2, 4, 2))
sketch3.addConstraint(Sketcher.Constraint("Coincident", 9, 1, 10, 1))
sketch3.addConstraint(Sketcher.Constraint("Coincident", 10, 2, 11, 2))
sketch3.addConstraint(Sketcher.Constraint("Coincident", 14, 1, 15, 1))
sketch3.addConstraint(Sketcher.Constraint("Coincident", 15, 2, 16, 1))
sketch3.addConstraint(Sketcher.Constraint("Coincident", 16, 2, 17, 2))
sketch3.addConstraint(Sketcher.Constraint("Coincident", 22, 1, 23, 1))
sketch3.addConstraint(Sketcher.Constraint("Coincident", 23, 2, 24, 1))
sketch3.addConstraint(Sketcher.Constraint("Coincident", 24, 2, 25, 1))
sketch3.addConstraint(Sketcher.Constraint("Coincident", 25, 2, 26, 2))
sketch3.addConstraint(Sketcher.Constraint("Coincident", 30, 1, 31, 1))
sketch3.addConstraint(Sketcher.Constraint("Coincident", 31, 2, 32, 1))
sketch3.addConstraint(Sketcher.Constraint("Coincident", 32, 2, 33, 2))
sketch3.addConstraint(Sketcher.Constraint("Coincident", 37, 1, 38, 1))
sketch3.addConstraint(Sketcher.Constraint("Coincident", 38, 2, 39, 2))
sketch3.addConstraint(Sketcher.Constraint("Coincident", 42, 1, 43, 1))
sketch3.addConstraint(Sketcher.Constraint("Coincident", 43, 2, 44, 1))
sketch3.addConstraint(Sketcher.Constraint("Coincident", 44, 2, 45, 2))
sketch3.addConstraint(Sketcher.Constraint("Coincident", 50, 1, 51, 1))
sketch3.addConstraint(Sketcher.Constraint("Coincident", 51, 2, 52, 1))
sketch3.addConstraint(Sketcher.Constraint("Coincident", 52, 2, 53, 1))
sketch3.addConstraint(Sketcher.Constraint("Coincident", 53, 2, 54, 2))
sketch3.addConstraint(Sketcher.Constraint("Coincident", 58, 1, 59, 1))
sketch3.addConstraint(Sketcher.Constraint("Coincident", 59, 2, 60, 1))
sketch3.addConstraint(Sketcher.Constraint("Coincident", 60, 2, 61, 2))
sketch3.addConstraint(Sketcher.Constraint("Coincident", 63, 2, 64, 1))
sketch3.addConstraint(Sketcher.Constraint("Coincident", 64, 2, 65, 1))
sketch3.addConstraint(Sketcher.Constraint("Coincident", 65, 2, 66, 2))
sketch3.addConstraint(Sketcher.Constraint("Coincident", 69, 1, 70, 1))
sketch3.addConstraint(Sketcher.Constraint("Coincident", 70, 2, 71, 1))
sketch3.addConstraint(Sketcher.Constraint("Coincident", 71, 2, 72, 2))
sketch3.addConstraint(Sketcher.Constraint("Coincident", 76, 1, 77, 1))
sketch3.addConstraint(Sketcher.Constraint("Coincident", 77, 2, 63, 1))
sketch3.addConstraint(Sketcher.Constraint("Vertical", 0))
sketch3.addConstraint(Sketcher.Constraint("Horizontal", 1))
sketch3.addConstraint(Sketcher.Constraint("Vertical", 2))
sketch3.addConstraint(Sketcher.Constraint("Horizontal", 3))
sketch3.addConstraint(Sketcher.Constraint("Horizontal", 15))
sketch3.addConstraint(Sketcher.Constraint("Vertical", 16))
sketch3.addConstraint(Sketcher.Constraint("Vertical", 23))
sketch3.addConstraint(Sketcher.Constraint("Horizontal", 24))
sketch3.addConstraint(Sketcher.Constraint("Vertical", 25))
sketch3.addConstraint(Sketcher.Constraint("Vertical", 31))
sketch3.addConstraint(Sketcher.Constraint("Horizontal", 32))
sketch3.addConstraint(Sketcher.Constraint("Horizontal", 43))
sketch3.addConstraint(Sketcher.Constraint("Vertical", 44))
sketch3.addConstraint(Sketcher.Constraint("Vertical", 51))
sketch3.addConstraint(Sketcher.Constraint("Horizontal", 52))
sketch3.addConstraint(Sketcher.Constraint("Vertical", 53))
sketch3.addConstraint(Sketcher.Constraint("Vertical", 59))
sketch3.addConstraint(Sketcher.Constraint("Horizontal", 60))
sketch3.addConstraint(Sketcher.Constraint("Vertical", 63))
sketch3.addConstraint(Sketcher.Constraint("Horizontal", 64))
sketch3.addConstraint(Sketcher.Constraint("Vertical", 65))
sketch3.addConstraint(Sketcher.Constraint("Horizontal", 70))
sketch3.addConstraint(Sketcher.Constraint("Vertical", 71))
sketch3.addConstraint(Sketcher.Constraint("Horizontal", 77))
sketch3.addConstraint(Sketcher.Constraint("DistanceY", 0, 1, 0, 2, 5.0))
sketch3.addConstraint(Sketcher.Constraint("DistanceX", 1, 2, 1, 1, 0.25))
sketch3.addConstraint(Sketcher.Constraint("DistanceY", -1, 1, 0, 2, 2.5))
sketch3.addConstraint(Sketcher.Constraint("DistanceX", -1, 1, 1, 2, 2.5))
sketch3.addConstraint(Sketcher.Constraint("DistanceX", 63, 2, -1, 1, 2.5))
sketch3.addConstraint(Sketcher.Constraint("DistanceY", 71, 2, 51, 2, 1.1))
sketch3.addConstraint(Sketcher.Constraint("DistanceY", 23, 1, 23, 2, 0.0596))
sketch3.addConstraint(Sketcher.Constraint("DistanceY", 63, 2, 63, 1, 1.1025))
pad3 = doc.addObject("PartDesign::Pad", "Pad002")
body.addObject(pad3)
pad3.Profile = sketch3
pad3.Length = 0.01

doc.recompute()
